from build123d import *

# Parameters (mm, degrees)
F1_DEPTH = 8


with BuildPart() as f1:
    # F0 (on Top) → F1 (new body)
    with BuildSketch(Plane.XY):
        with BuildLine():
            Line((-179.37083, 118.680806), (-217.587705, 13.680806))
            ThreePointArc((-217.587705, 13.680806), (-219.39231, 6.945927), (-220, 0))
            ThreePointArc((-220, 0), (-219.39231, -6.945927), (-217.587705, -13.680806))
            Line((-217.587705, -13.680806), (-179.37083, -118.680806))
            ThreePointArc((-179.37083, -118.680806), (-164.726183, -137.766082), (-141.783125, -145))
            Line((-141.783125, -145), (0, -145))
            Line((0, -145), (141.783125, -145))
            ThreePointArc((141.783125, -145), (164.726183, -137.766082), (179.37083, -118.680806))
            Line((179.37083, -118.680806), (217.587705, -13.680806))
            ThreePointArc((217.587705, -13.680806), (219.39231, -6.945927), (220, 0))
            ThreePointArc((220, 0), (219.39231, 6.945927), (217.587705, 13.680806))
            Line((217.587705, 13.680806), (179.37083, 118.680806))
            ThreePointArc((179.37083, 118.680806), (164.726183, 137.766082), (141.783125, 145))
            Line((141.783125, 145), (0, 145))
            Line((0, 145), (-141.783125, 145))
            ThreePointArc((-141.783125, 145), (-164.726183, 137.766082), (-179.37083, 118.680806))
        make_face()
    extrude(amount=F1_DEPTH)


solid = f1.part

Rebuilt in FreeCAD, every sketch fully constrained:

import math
import FreeCAD as App
import Part
import Sketcher
Q = App.Units.Quantity

doc = App.newDocument("Part")
params = doc.addObject("Spreadsheet::Sheet", "Params")
for row, (alias, value) in enumerate([
    ("sketch1_radius", "39.999998 mm"),
    ("pad1_length", "8 mm"),
], start=1):
    params.set(f"A{row}", alias)
    params.set(f"B{row}", "=" + value)
    params.setAlias(f"B{row}", alias)

body = doc.addObject("PartDesign::Body", "Body")

# Sketch on XY plane
sketch1 = body.newObject("Sketcher::SketchObject", "Sketch")
sketch1.AttachmentSupport = (doc.getObject("XY_Plane"), [""])
sketch1.MapMode = "FlatFace"
sketch1.addGeometry([
    Part.LineSegment(App.Vector(-179, 119, 0), App.Vector(-218, 14, 0)),  # 0
    Part.ArcOfCircle(Part.Circle(App.Vector(-180, 0, 0), App.Vector(0, 0, 1), 40), math.radians(160), math.radians(180)),  # 1
    Part.ArcOfCircle(Part.Circle(App.Vector(-180, 0, 0), App.Vector(0, 0, 1), 40), math.radians(-180), math.radians(-160)),  # 2
    Part.LineSegment(App.Vector(-218, -14, 0), App.Vector(-179, -119, 0)),  # 3
    Part.ArcOfCircle(Part.Circle(App.Vector(-142, -105, 0), App.Vector(0, 0, 1), 40), math.radians(-160), math.radians(-90)),  # 4
    Part.LineSegment(App.Vector(-142, -145, 0), App.Vector(142, -145, 0)),  # 5
    Part.ArcOfCircle(Part.Circle(App.Vector(142, -105, 0), App.Vector(0, 0, 1), 40), math.radians(-90), math.radians(-20)),  # 6
    Part.LineSegment(App.Vector(179, -119, 0), App.Vector(218, -14, 0)),  # 7
    Part.ArcOfCircle(Part.Circle(App.Vector(180, 0, 0), App.Vector(0, 0, 1), 40), math.radians(-20), math.radians(0)),  # 8
    Part.ArcOfCircle(Part.Circle(App.Vector(180, 0, 0), App.Vector(0, 0, 1), 40), math.radians(0), math.radians(20)),  # 9
    Part.LineSegment(App.Vector(218, 14, 0), App.Vector(179, 119, 0)),  # 10
    Part.ArcOfCircle(Part.Circle(App.Vector(142, 105, 0), App.Vector(0, 0, 1), 40), math.radians(20), math.radians(90)),  # 11
    Part.LineSegment(App.Vector(142, 145, 0), App.Vector(-142, 145, 0)),  # 12
    Part.ArcOfCircle(Part.Circle(App.Vector(-142, 105, 0), App.Vector(0, 0, 1), 40), math.radians(90), math.radians(160)),  # 13
], False)
sketch1.addConstraint([
    Sketcher.Constraint("Tangent", 0, 2, 1, 1),
    Sketcher.Constraint("Tangent", 1, 2, 2, 1),
    Sketcher.Constraint("Tangent", 2, 2, 3, 1),
    Sketcher.Constraint("Tangent", 3, 2, 4, 1),
    Sketcher.Constraint("Tangent", 4, 2, 5, 1),
    Sketcher.Constraint("Tangent", 5, 2, 6, 1),
    Sketcher.Constraint("Tangent", 6, 2, 7, 1),
    Sketcher.Constraint("Tangent", 7, 2, 8, 1),
    Sketcher.Constraint("Tangent", 8, 2, 9, 1),
    Sketcher.Constraint("Tangent", 9, 2, 10, 1),
    Sketcher.Constraint("Tangent", 10, 2, 11, 1),
    Sketcher.Constraint("Tangent", 11, 2, 12, 1),
    Sketcher.Constraint("Tangent", 12, 2, 13, 1),
    Sketcher.Constraint("Tangent", 13, 2, 0, 1),
    Sketcher.Constraint("Horizontal", 5),
    Sketcher.Constraint("Horizontal", 12),
    Sketcher.Constraint("Equal", 1, 2),
    Sketcher.Constraint("Equal", 4, 6),
    Sketcher.Constraint("Equal", 2, 8),
    Sketcher.Constraint("Equal", 8, 9),
    Sketcher.Constraint("Equal", 6, 11),
    Sketcher.Constraint("Equal", 11, 13),
    Sketcher.Constraint("Symmetric", 1, 3, 8, 3, -1, 1),
    Sketcher.Constraint("Symmetric", 4, 3, 11, 3, -1, 1),
    Sketcher.Constraint("Symmetric", 2, 2, 7, 2, -2),
    Sketcher.Constraint("PointOnObject", 1, 2, -1),
    Sketcher.Constraint("PointOnObject", 8, 2, -1),
    Sketcher.Constraint("Parallel", 0, 7),
    Sketcher.Constraint("Radius", 4, Q("39.999998 mm")),
    Sketcher.Constraint("Angle", 0, Q("-110 deg")),
    Sketcher.Constraint("DistanceY", 4, 3, -1, 1, Q("105.000002 mm")),
    Sketcher.Constraint("DistanceX", 1, 2, -1, 1, Q("220 mm")),
    Sketcher.Constraint("DistanceY", 3, 2, 2, 2, Q("105 mm")),
])
sketch1.setExpression("Constraints[28]", "Params.sketch1_radius")
pad1 = body.newObject("PartDesign::Pad", "Pad")
pad1.Profile = sketch1
pad1.setExpression("Length", "Params.pad1_length")

doc.recompute()
